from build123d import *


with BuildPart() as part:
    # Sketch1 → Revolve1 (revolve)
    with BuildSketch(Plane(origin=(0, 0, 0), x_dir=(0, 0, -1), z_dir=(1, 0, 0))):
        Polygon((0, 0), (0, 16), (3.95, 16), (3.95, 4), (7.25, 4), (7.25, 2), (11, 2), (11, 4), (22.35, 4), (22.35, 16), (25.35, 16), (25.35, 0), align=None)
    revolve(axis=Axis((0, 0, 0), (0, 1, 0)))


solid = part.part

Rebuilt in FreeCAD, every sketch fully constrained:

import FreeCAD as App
import Part
import Sketcher

V = App.Vector
Q = App.Units.Quantity

doc = App.newDocument("Part")
params = doc.addObject("Spreadsheet::Sheet", "Params")
for row, (alias, value) in enumerate([
    ("sketch1_width", "16 mm"),
    ("sketch1_width2", "12 mm"),
    ("sketch1_width3", "2 mm"),
    ("sketch1_height", "3 mm"),
    ("sketch1_height2", "3.3 mm"),
    ("revolution_angle", "360 deg"),
], start=1):
    params.set(f"A{row}", alias)
    params.set(f"B{row}", "=" + value)
    params.setAlias(f"B{row}", alias)

body = doc.addObject("PartDesign::Body", "Body")

# Sketch on YZ plane
sketch1 = body.newObject("Sketcher::SketchObject", "Sketch")
sketch1.AttachmentSupport = (doc.getObject("YZ_Plane"), [""])
sketch1.MapMode = "FlatFace"
sketch1.addGeometry(Part.LineSegment(V(16, 0, 0), V(0, 0, 0)), False)
sketch1.addGeometry(Part.LineSegment(V(0, 0, 0), V(0, -25.4, 0)), False)
sketch1.addGeometry(Part.LineSegment(V(0, -25.4, 0), V(16, -25.4, 0)), False)
sketch1.addGeometry(Part.LineSegment(V(16, -25.4, 0), V(16, -22.4, 0)), False)
sketch1.addGeometry(Part.LineSegment(V(16, -22.4, 0), V(4, -22.4, 0)), False)
sketch1.addGeometry(Part.LineSegment(V(4, -22.4, 0), V(4, -11, 0)), False)
sketch1.addGeometry(Part.LineSegment(V(4, -11, 0), V(2, -11, 0)), False)
sketch1.addGeometry(Part.LineSegment(V(2, -11, 0), V(2, -7.2, 0)), False)
sketch1.addGeometry(Part.LineSegment(V(2, -7.2, 0), V(4, -7.2, 0)), False)
sketch1.addGeometry(Part.LineSegment(V(4, -7.2, 0), V(4, -4, 0)), False)
sketch1.addGeometry(Part.LineSegment(V(4, -4, 0), V(16, -4, 0)), False)
sketch1.addGeometry(Part.LineSegment(V(16, -4, 0), V(16, 0, 0)), False)
sketch1.addConstraint(Sketcher.Constraint("Coincident", 0, 2, 1, 1))
sketch1.addConstraint(Sketcher.Constraint("Coincident", 1, 2, 2, 1))
sketch1.addConstraint(Sketcher.Constraint("Coincident", 2, 2, 3, 1))
sketch1.addConstraint(Sketcher.Constraint("Coincident", 3, 2, 4, 1))
sketch1.addConstraint(Sketcher.Constraint("Coincident", 4, 2, 5, 1))
sketch1.addConstraint(Sketcher.Constraint("Coincident", 5, 2, 6, 1))
sketch1.addConstraint(Sketcher.Constraint("Coincident", 6, 2, 7, 1))
sketch1.addConstraint(Sketcher.Constraint("Coincident", 7, 2, 8, 1))
sketch1.addConstraint(Sketcher.Constraint("Coincident", 8, 2, 9, 1))
sketch1.addConstraint(Sketcher.Constraint("Coincident", 9, 2, 10, 1))
sketch1.addConstraint(Sketcher.Constraint("Coincident", 10, 2, 11, 1))
sketch1.addConstraint(Sketcher.Constraint("Coincident", 11, 2, 0, 1))
sketch1.addConstraint(Sketcher.Constraint("Horizontal", 0))
sketch1.addConstraint(Sketcher.Constraint("Vertical", 1))
sketch1.addConstraint(Sketcher.Constraint("Horizontal", 2))
sketch1.addConstraint(Sketcher.Constraint("Vertical", 3))
sketch1.addConstraint(Sketcher.Constraint("Horizontal", 4))
sketch1.addConstraint(Sketcher.Constraint("Vertical", 5))
sketch1.addConstraint(Sketcher.Constraint("Horizontal", 6))
sketch1.addConstraint(Sketcher.Constraint("Vertical", 7))
sketch1.addConstraint(Sketcher.Constraint("Horizontal", 8))
sketch1.addConstraint(Sketcher.Constraint("Vertical", 9))
sketch1.addConstraint(Sketcher.Constraint("Horizontal", 10))
sketch1.addConstraint(Sketcher.Constraint("Vertical", 11))
sketch1.addConstraint(Sketcher.Constraint("Coincident", 0, 2, -1, 1))
sketch1.addConstraint(Sketcher.Constraint("Vertical", 5, 2, 8, 2))
sketch1.addConstraint(Sketcher.Constraint("Vertical", 3, 2, 10, 2))
sketch1.addConstraint(Sketcher.Constraint("DistanceX", 0, 2, 0, 1, Q("16 mm")))
sketch1.addConstraint(Sketcher.Constraint("DistanceX", 4, 2, 4, 1, Q("12 mm")))
sketch1.addConstraint(Sketcher.Constraint("DistanceX", 6, 2, 6, 1, Q("2 mm")))
sketch1.addConstraint(Sketcher.Constraint("DistanceY", 3, 1, 3, 2, Q("3 mm")))
sketch1.addConstraint(Sketcher.Constraint("DistanceY", 9, 1, 9, 2, Q("3.3 mm")))
sketch1.addConstraint(Sketcher.Constraint("DistanceY", 5, 2, -1, 1, Q("11 mm")))
sketch1.addConstraint(Sketcher.Constraint("DistanceY", 1, 2, 1, 1, Q("25.35 mm")))
sketch1.addConstraint(Sketcher.Constraint("DistanceY", 7, 1, 7, 2, Q("3.75 mm")))
sketch1.setExpression("Constraints[27]", "Params.sketch1_width")
sketch1.setExpression("Constraints[28]", "Params.sketch1_width2")
sketch1.setExpression("Constraints[29]", "Params.sketch1_width3")
sketch1.setExpression("Constraints[30]", "Params.sketch1_height")
sketch1.setExpression("Constraints[31]", "Params.sketch1_height2")
revolution = body.newObject("PartDesign::Revolution", "Revolution")
revolution.Profile = sketch1
revolution.ReferenceAxis = (sketch1, ["H_Axis"])
revolution.setExpression("Angle", "Params.revolution_angle")

doc.recompute()
